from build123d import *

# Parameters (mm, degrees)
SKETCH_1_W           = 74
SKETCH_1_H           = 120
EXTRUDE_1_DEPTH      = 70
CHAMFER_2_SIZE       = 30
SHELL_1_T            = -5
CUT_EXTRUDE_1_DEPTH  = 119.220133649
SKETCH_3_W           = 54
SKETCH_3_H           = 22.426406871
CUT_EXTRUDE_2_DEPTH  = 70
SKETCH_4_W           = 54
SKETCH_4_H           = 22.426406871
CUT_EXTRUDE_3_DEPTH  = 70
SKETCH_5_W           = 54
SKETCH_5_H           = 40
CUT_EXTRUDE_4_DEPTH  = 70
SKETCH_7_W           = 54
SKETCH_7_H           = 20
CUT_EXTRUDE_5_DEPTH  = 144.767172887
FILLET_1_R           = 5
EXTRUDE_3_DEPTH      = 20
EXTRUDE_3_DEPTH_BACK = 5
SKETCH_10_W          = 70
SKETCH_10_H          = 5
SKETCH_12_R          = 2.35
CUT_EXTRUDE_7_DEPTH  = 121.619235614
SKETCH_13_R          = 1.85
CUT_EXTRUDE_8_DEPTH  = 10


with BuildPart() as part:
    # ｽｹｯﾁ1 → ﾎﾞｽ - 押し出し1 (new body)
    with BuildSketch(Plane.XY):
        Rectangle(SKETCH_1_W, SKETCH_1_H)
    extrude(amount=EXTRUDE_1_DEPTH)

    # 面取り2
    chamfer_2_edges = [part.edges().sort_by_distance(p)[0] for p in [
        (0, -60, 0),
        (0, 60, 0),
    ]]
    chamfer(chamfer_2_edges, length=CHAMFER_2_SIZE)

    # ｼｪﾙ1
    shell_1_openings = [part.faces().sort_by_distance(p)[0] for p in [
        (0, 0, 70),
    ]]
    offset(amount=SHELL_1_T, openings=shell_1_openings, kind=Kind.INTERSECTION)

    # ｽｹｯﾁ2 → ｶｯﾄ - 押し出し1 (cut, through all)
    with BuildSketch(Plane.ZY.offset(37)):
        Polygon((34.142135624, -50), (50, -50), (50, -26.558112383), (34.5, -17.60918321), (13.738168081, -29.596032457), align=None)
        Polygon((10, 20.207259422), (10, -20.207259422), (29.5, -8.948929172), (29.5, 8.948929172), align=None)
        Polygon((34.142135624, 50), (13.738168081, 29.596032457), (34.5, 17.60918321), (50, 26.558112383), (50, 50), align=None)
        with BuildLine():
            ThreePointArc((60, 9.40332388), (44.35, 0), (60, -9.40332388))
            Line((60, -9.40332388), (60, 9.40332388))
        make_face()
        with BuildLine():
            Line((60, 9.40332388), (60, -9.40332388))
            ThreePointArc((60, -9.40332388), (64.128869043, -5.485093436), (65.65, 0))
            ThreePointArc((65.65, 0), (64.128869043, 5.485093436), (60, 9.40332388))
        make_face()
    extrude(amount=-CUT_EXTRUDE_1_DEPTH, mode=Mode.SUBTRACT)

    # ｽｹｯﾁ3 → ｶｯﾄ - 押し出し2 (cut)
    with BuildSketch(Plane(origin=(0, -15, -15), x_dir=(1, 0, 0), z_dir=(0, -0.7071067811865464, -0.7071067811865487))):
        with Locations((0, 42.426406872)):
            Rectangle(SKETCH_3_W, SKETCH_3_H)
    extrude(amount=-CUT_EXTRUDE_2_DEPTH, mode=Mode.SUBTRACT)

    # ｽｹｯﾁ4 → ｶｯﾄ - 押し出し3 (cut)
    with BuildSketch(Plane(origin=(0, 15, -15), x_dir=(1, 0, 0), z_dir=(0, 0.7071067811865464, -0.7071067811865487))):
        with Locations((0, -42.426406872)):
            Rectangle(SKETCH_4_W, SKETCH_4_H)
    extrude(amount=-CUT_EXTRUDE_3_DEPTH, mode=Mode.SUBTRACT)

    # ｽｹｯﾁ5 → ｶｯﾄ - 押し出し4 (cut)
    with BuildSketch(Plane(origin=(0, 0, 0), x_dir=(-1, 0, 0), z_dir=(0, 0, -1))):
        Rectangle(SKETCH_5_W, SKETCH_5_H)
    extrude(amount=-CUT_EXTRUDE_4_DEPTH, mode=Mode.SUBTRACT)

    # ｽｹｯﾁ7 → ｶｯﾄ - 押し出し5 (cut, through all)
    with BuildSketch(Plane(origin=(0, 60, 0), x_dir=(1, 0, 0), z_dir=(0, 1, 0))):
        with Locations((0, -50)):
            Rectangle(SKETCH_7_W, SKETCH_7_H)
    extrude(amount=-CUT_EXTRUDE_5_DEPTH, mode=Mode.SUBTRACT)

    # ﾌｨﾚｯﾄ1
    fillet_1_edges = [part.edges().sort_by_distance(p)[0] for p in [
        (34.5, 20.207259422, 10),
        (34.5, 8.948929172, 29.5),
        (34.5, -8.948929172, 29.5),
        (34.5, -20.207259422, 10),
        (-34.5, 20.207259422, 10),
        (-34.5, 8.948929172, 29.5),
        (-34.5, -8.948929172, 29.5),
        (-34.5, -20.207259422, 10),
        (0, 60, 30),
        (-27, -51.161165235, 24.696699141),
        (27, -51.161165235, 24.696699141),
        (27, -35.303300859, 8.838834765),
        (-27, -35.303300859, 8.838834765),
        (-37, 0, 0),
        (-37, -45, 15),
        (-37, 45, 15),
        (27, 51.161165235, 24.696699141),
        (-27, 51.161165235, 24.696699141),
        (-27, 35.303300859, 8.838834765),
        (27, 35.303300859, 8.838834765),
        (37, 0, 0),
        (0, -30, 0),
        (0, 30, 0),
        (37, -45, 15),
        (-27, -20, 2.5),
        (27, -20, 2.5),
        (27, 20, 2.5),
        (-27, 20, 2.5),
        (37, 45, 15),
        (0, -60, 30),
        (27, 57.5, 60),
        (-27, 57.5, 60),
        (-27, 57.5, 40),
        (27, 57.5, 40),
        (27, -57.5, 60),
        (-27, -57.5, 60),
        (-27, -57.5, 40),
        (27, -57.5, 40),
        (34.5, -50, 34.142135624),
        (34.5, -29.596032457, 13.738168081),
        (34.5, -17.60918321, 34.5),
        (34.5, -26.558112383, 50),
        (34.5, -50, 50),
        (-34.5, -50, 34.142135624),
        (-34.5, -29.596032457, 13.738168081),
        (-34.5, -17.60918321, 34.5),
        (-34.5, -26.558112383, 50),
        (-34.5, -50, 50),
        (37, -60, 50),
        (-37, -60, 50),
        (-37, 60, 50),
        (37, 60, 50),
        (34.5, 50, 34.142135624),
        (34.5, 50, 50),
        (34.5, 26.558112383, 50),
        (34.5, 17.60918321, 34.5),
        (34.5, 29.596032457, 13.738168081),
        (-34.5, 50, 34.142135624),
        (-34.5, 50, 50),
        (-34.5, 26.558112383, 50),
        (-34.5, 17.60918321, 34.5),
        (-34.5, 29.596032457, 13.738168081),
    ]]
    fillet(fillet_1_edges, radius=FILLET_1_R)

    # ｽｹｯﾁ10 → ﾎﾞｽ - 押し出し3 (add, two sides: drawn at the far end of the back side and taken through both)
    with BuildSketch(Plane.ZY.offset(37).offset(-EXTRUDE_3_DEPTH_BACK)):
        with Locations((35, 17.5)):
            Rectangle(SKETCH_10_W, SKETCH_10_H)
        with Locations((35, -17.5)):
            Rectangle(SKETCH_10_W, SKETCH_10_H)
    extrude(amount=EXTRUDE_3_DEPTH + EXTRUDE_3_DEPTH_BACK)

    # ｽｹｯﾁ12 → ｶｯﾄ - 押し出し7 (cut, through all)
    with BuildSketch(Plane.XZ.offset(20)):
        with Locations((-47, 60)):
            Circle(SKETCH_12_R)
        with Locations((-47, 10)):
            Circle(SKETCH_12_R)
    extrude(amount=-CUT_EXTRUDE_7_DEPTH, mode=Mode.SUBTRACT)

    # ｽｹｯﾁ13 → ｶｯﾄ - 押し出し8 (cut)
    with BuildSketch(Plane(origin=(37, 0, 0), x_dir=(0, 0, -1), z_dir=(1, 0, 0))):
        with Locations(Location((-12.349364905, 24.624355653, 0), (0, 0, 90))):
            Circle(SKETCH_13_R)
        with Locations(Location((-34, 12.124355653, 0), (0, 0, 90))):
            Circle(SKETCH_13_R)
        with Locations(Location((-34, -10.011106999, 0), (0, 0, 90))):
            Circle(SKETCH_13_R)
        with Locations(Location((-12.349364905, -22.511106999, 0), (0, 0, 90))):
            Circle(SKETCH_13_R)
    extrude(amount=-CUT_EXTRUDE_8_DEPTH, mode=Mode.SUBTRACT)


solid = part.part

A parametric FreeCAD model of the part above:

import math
import FreeCAD as App
import Part
import Sketcher
from FreeCAD import Vector
Q = App.Units.Quantity


def edges_at(feature, points):
    """Names of the edges that pass closest to the given points."""
    edges = feature.Shape.Edges
    near = lambda p: min(range(len(edges)), key=lambda i: edges[i].distToShape(Part.Vertex(*p))[0])
    return sorted({f"Edge{near(p) + 1}" for p in points})


def faces_at(feature, points):
    """Names of the faces that lie closest to the given points."""
    faces = feature.Shape.Faces
    near = lambda p: min(range(len(faces)), key=lambda i: faces[i].distToShape(Part.Vertex(*p))[0])
    return sorted({f"Face{near(p) + 1}" for p in points})


def add_polygon(sketch, points):
    """Adds a closed chain of lines whose ends are joined by coincident constraints."""
    first, n = sketch.GeometryCount, len(points)
    for a, b in zip(points, points[1:] + points[:1]):
        sketch.addGeometry(Part.LineSegment(App.Vector(*a, 0), App.Vector(*b, 0)), False)
    for i in range(n):
        sketch.addConstraint(Sketcher.Constraint("Coincident", first + i, 2, first + (i + 1) % n, 1))

doc = App.newDocument("Part")
body = doc.addObject("PartDesign::Body", "Body")

sketch1 = body.newObject("Sketcher::SketchObject", "Sketch")
sketch1.AttachmentSupport = (doc.getObject("XY_Plane"), [""])
sketch1.MapMode = "FlatFace"
add_polygon(sketch1, [(-37, 60), (-37, -60), (37, -60), (37, 60)])
sketch1.addConstraint([
    Sketcher.Constraint("Vertical", 0),
    Sketcher.Constraint("Horizontal", 1),
    Sketcher.Constraint("Vertical", 2),
    Sketcher.Constraint("Horizontal", 3),
    Sketcher.Constraint("Symmetric", 0, 2, 2, 2, -1, 1),
    Sketcher.Constraint("DistanceX", 1, 1, 1, 2, 74.0),
    Sketcher.Constraint("DistanceY", 0, 2, 0, 1, 120.0),
])
pad1 = body.newObject("PartDesign::Pad", "Pad")
pad1.Profile = sketch1
pad1.Length = 70
doc.recompute()

chamfer = body.newObject("PartDesign::Chamfer", "Chamfer")
chamfer.Base = (pad1, edges_at(pad1, [(0, -60, 0), (0, 60, 0)]))
chamfer.Size = 30
doc.recompute()

thickness = body.newObject("PartDesign::Thickness", "Thickness")
thickness.Base = (chamfer, faces_at(chamfer, [(0, 0, 70)]))
thickness.Value = 5
thickness.Reversed = True
thickness.Join = "Intersection"

sketch2 = body.newObject("Sketcher::SketchObject", "Sketch001")
sketch2.AttachmentSupport = (doc.getObject("YZ_Plane"), [""])
sketch2.MapMode = "FlatFace"
sketch2.AttachmentOffset = App.Placement(Vector(0, 0, -37), App.Rotation())
add_polygon(sketch2, [(-50, 34), (-50, 50), (-27, 50), (-18, 34), (-30, 14)])
add_polygon(sketch2, [(20, 10), (-20, 10), (-9, 30), (9, 30)])
add_polygon(sketch2, [(50, 34), (30, 14), (18, 34), (27, 50), (50, 50)])
sketch2.addGeometry(Part.ArcOfCircle(Part.Circle(Vector(0, 55, 0), Vector(0, 0, 1), 11), math.radians(152), math.radians(388)), False)
sketch2.addGeometry(Part.ArcOfCircle(Part.Circle(Vector(0, 55, 0), Vector(0, 0, 1), 11), math.radians(90), math.radians(152)), False)
sketch2.addGeometry(Part.ArcOfCircle(Part.Circle(Vector(0, 55, 0), Vector(0, 0, 1), 11), math.radians(28), math.radians(90)), False)
sketch2.addConstraint([
    Sketcher.Constraint("Tangent", 14, 1, 15, 2),
    Sketcher.Constraint("Tangent", 15, 1, 16, 2),
    Sketcher.Constraint("Tangent", 16, 1, 14, 2),
    Sketcher.Constraint("Vertical", 0),
    Sketcher.Constraint("Horizontal", 1),
    Sketcher.Constraint("Horizontal", 5),
    Sketcher.Constraint("Horizontal", 7),
    Sketcher.Constraint("Horizontal", 12),
    Sketcher.Constraint("Vertical", 13),
    Sketcher.Constraint("Symmetric", 3, 2, 9, 2, -2),
    Sketcher.Constraint("Symmetric", 2, 2, 10, 2, -2),
    Sketcher.Constraint("Symmetric", 1, 2, 11, 2, -2),
    Sketcher.Constraint("Symmetric", 4, 2, 13, 2, -2),
    Sketcher.Constraint("Symmetric", 14, 1, 16, 1, -2),
    Sketcher.Constraint("PointOnObject", 15, 1, -2),
    Sketcher.Constraint("Parallel", 3, 6),
    Sketcher.Constraint("Parallel", 2, 8),
    Sketcher.Constraint("Perpendicular", 4, 9),
    Sketcher.Constraint("Parallel", 8, 10),
    Sketcher.Constraint("Angle", 2, Q("-60 deg")),
    Sketcher.Constraint("Radius", 14, 10.65),
    Sketcher.Constraint("DistanceY", -1, 1, 14, 3, 55.0),
    Sketcher.Constraint("DistanceX", 0, 2, -1, 1, 50.0),
    Sketcher.Constraint("DistanceY", -1, 1, 0, 2, 50.0),
    Sketcher.Constraint("DistanceY", -1, 1, 5, 2, 10.0),
    Sketcher.Constraint("DistanceY", -1, 1, 14, 1, 60.0),
    Sketcher.Constraint("DistanceY", 6, 2, 2, 2, 5.0),
    Sketcher.Constraint("DistanceY", -1, 1, 2, 2, 34.5),
    Sketcher.Constraint("Distance", 3, 23.973698),
    Sketcher.Constraint("DistanceX", 5, 2, 5, 1, 40.414519),
    Sketcher.Constraint("DistanceX", 1, 1, 1, 2, 23.441888),
    Sketcher.Constraint("DistanceX", 5, 2, -1, 1, 20.207259),
])
pocket1 = body.newObject("PartDesign::Pocket", "Pocket")
pocket1.Profile = sketch2
pocket1.Type = "ThroughAll"
pocket1.Reversed = True

sketch3 = body.newObject("Sketcher::SketchObject", "Sketch002")
sketch3.Placement = App.Placement(Vector(0, -15, -15), App.Rotation(Vector(1, 0, 0), Vector(0, -0.707106781, 0.707106781), Vector(0, -0.707106781, -0.707106781), "ZXY"))
add_polygon(sketch3, [(-27, 54), (-27, 31), (27, 31), (27, 54)])
sketch3.addConstraint([
    Sketcher.Constraint("Vertical", 0),
    Sketcher.Constraint("Horizontal", 1),
    Sketcher.Constraint("Vertical", 2),
    Sketcher.Constraint("Horizontal", 3),
    Sketcher.Constraint("DistanceX", 1, 1, 1, 2, 54.0),
    Sketcher.Constraint("DistanceX", 0, 2, -1, 1, 27.0),
    Sketcher.Constraint("DistanceY", 0, 2, 0, 1, 22.426407),
    Sketcher.Constraint("DistanceY", -1, 1, 2, 2, 53.63961),
])
pocket2 = body.newObject("PartDesign::Pocket", "Pocket001")
pocket2.Profile = sketch3
pocket2.Length = 70

sketch4 = body.newObject("Sketcher::SketchObject", "Sketch003")
sketch4.Placement = App.Placement(Vector(0, 15, -15), App.Rotation(Vector(1, 0, 0), Vector(0, -0.707106781, -0.707106781), Vector(0, 0.707106781, -0.707106781), "ZXY"))
add_polygon(sketch4, [(-27, -31), (-27, -54), (27, -54), (27, -31)])
sketch4.addConstraint([
    Sketcher.Constraint("Vertical", 0),
    Sketcher.Constraint("Horizontal", 1),
    Sketcher.Constraint("Vertical", 2),
    Sketcher.Constraint("Horizontal", 3),
    Sketcher.Constraint("DistanceX", 1, 1, 1, 2, 54.0),
    Sketcher.Constraint("DistanceX", 0, 2, -1, 1, 27.0),
    Sketcher.Constraint("DistanceY", 0, 2, 0, 1, 22.426407),
    Sketcher.Constraint("DistanceY", 0, 2, -1, 1, 53.63961),
])
pocket3 = body.newObject("PartDesign::Pocket", "Pocket002")
pocket3.Profile = sketch4
pocket3.Length = 70

sketch5 = body.newObject("Sketcher::SketchObject", "Sketch004")
sketch5.AttachmentSupport = (doc.getObject("XY_Plane"), [""])
sketch5.MapMode = "FlatFace"
add_polygon(sketch5, [(27, 20), (27, -20), (-27, -20), (-27, 20)])
sketch5.addConstraint([
    Sketcher.Constraint("Vertical", 0),
    Sketcher.Constraint("Horizontal", 1),
    Sketcher.Constraint("Vertical", 2),
    Sketcher.Constraint("Horizontal", 3),
    Sketcher.Constraint("Symmetric", 0, 2, 2, 2, -1, 1),
    Sketcher.Constraint("DistanceX", 1, 2, 1, 1, 54.0),
    Sketcher.Constraint("DistanceY", 0, 2, 0, 1, 40.0),
])
pocket4 = body.newObject("PartDesign::Pocket", "Pocket003")
pocket4.Profile = sketch5
pocket4.Length = 70
pocket4.Reversed = True

sketch6 = body.newObject("Sketcher::SketchObject", "Sketch005")
sketch6.AttachmentSupport = (doc.getObject("XZ_Plane"), [""])
sketch6.MapMode = "FlatFace"
sketch6.AttachmentOffset = App.Placement(Vector(0, 0, -60), App.Rotation())
add_polygon(sketch6, [(-27, 40), (-27, 60), (27, 60), (27, 40)])
sketch6.addConstraint([
    Sketcher.Constraint("Vertical", 0),
    Sketcher.Constraint("Horizontal", 1),
    Sketcher.Constraint("Vertical", 2),
    Sketcher.Constraint("Horizontal", 3),
    Sketcher.Constraint("DistanceX", 1, 1, 1, 2, 54.0),
    Sketcher.Constraint("DistanceY", 0, 1, 0, 2, 20.0),
    Sketcher.Constraint("DistanceX", 0, 2, -1, 1, 27.0),
    Sketcher.Constraint("DistanceY", -1, 1, 0, 2, 60.0),
])
pocket5 = body.newObject("PartDesign::Pocket", "Pocket004")
pocket5.Profile = sketch6
pocket5.Type = "ThroughAll"
pocket5.Reversed = True
doc.recompute()

fillet = body.newObject("PartDesign::Fillet", "Fillet")
fillet.Base = (pocket5, edges_at(pocket5, [
    (34.5, 20.207, 10),
    (34.5, 8.949, 29.5),
    (34.5, -8.949, 29.5),
    (34.5, -20.207, 10),
    (-34.5, 20.207, 10),
    (-34.5, 8.949, 29.5),
    (-34.5, -8.949, 29.5),
    (-34.5, -20.207, 10),
    (0, 60, 30),
    (-27, -51.161, 24.697),
    (27, -51.161, 24.697),
    (27, -35.303, 8.839),
    (-27, -35.303, 8.839),
    (-37, 0, 0),
    (-37, -45, 15),
    (-37, 45, 15),
    (27, 51.161, 24.697),
    (-27, 51.161, 24.697),
    (-27, 35.303, 8.839),
    (27, 35.303, 8.839),
    (37, 0, 0),
    (0, -30, 0),
    (0, 30, 0),
    (37, -45, 15),
    (-27, -20, 2.5),
    (27, -20, 2.5),
    (27, 20, 2.5),
    (-27, 20, 2.5),
    (37, 45, 15),
    (0, -60, 30),
    (27, 57.5, 60),
    (-27, 57.5, 60),
    (-27, 57.5, 40),
    (27, 57.5, 40),
    (27, -57.5, 60),
    (-27, -57.5, 60),
    (-27, -57.5, 40),
    (27, -57.5, 40),
    (34.5, -50, 34.142),
    (34.5, -29.596, 13.738),
    (34.5, -17.609, 34.5),
    (34.5, -26.558, 50),
    (34.5, -50, 50),
    (-34.5, -50, 34.142),
    (-34.5, -29.596, 13.738),
    (-34.5, -17.609, 34.5),
    (-34.5, -26.558, 50),
    (-34.5, -50, 50),
    (37, -60, 50),
    (-37, -60, 50),
    (-37, 60, 50),
    (37, 60, 50),
    (34.5, 50, 34.142),
    (34.5, 50, 50),
    (34.5, 26.558, 50),
    (34.5, 17.609, 34.5),
    (34.5, 29.596, 13.738),
    (-34.5, 50, 34.142),
    (-34.5, 50, 50),
    (-34.5, 26.558, 50),
    (-34.5, 17.609, 34.5),
    (-34.5, 29.596, 13.738),
]))
fillet.Radius = 5

sketch7 = body.newObject("Sketcher::SketchObject", "Sketch006")
sketch7.AttachmentSupport = (doc.getObject("YZ_Plane"), [""])
sketch7.MapMode = "FlatFace"
sketch7.AttachmentOffset = App.Placement(Vector(0, 0, -37), App.Rotation())
add_polygon(sketch7, [(20, 0), (15, 0), (15, 70), (20, 70)])
add_polygon(sketch7, [(-15, 0), (-20, 0), (-20, 70), (-15, 70)])
sketch7.addConstraint([
    Sketcher.Constraint("Horizontal", 0),
    Sketcher.Constraint("Vertical", 1),
    Sketcher.Constraint("Horizontal", 2),
    Sketcher.Constraint("Vertical", 3),
    Sketcher.Constraint("Horizontal", 4),
    Sketcher.Constraint("Vertical", 5),
    Sketcher.Constraint("Horizontal", 6),
    Sketcher.Constraint("Vertical", 7),
    Sketcher.Constraint("Symmetric", 3, 2, 4, 2, -1, 1),
    Sketcher.Constraint("Symmetric", 1, 2, 6, 2, -2),
    Sketcher.Constraint("PointOnObject", 0, 2, -1),
    Sketcher.Constraint("DistanceX", 0, 2, 0, 1, 5.0),
    Sketcher.Constraint("DistanceY", 1, 1, 1, 2, 70.0),
    Sketcher.Constraint("DistanceX", -1, 1, 0, 2, 15.0),
])
pad2 = body.newObject("PartDesign::Pad", "Pad001")
pad2.Profile = sketch7
pad2.Type = "TwoLengths"
pad2.Length = 20
pad2.Length2 = 5
pad2.Reversed = True

sketch8 = body.newObject("Sketcher::SketchObject", "Sketch007")
sketch8.AttachmentSupport = (doc.getObject("XZ_Plane"), [""])
sketch8.MapMode = "FlatFace"
sketch8.AttachmentOffset = App.Placement(Vector(0, 0, 20), App.Rotation())
sketch8.addGeometry([
    Part.Circle(Vector(-47, 60, 0), Vector(0, 0, 1), 2.4),
    Part.Circle(Vector(-47, 10, 0), Vector(0, 0, 1), 2.4),
], False)
sketch8.addConstraint([
    Sketcher.Constraint("Equal", 0, 1),
    Sketcher.Constraint("Vertical", 0, 3, 1, 3),
    Sketcher.Constraint("Diameter", 0, 4.7),
    Sketcher.Constraint("DistanceX", 0, 3, -1, 1, 47.0),
    Sketcher.Constraint("DistanceY", -1, 1, 0, 3, 60.0),
    Sketcher.Constraint("DistanceY", -1, 1, 1, 3, 10.0),
])
pocket6 = body.newObject("PartDesign::Pocket", "Pocket005")
pocket6.Profile = sketch8
pocket6.Type = "ThroughAll"

sketch9 = body.newObject("Sketcher::SketchObject", "Sketch008")
sketch9.AttachmentSupport = (doc.getObject("YZ_Plane"), [""])
sketch9.MapMode = "FlatFace"
sketch9.AttachmentOffset = App.Placement(Vector(0, 0, 37), App.Rotation())
sketch9.addGeometry([
    Part.Circle(Vector(24.6, 12.3, 0), Vector(0, 0, 1), 1.9),
    Part.Circle(Vector(12.1, 34, 0), Vector(0, 0, 1), 1.9),
    Part.Circle(Vector(-10, 34, 0), Vector(0, 0, 1), 1.9),
    Part.Circle(Vector(-22.5, 12.3, 0), Vector(0, 0, 1), 1.9),
], False)
sketch9.addConstraint([
    Sketcher.Constraint("Equal", 0, 1),
    Sketcher.Constraint("Equal", 1, 2),
    Sketcher.Constraint("Equal", 2, 3),
    Sketcher.Constraint("Horizontal", 1, 3, 2, 3),
    Sketcher.Constraint("Horizontal", 0, 3, 3, 3),
    Sketcher.Constraint("Diameter", 0, 3.7),
    Sketcher.Constraint("DistanceY", -1, 1, 1, 3, 34.0),
    Sketcher.Constraint("DistanceX", 1, 3, 0, 3, 12.5),
    Sketcher.Constraint("DistanceX", 3, 3, 2, 3, 12.5),
    Sketcher.Constraint("DistanceX", -1, 1, 0, 3, 24.624356),
    Sketcher.Constraint("DistanceY", -1, 1, 0, 3, 12.349365),
    Sketcher.Constraint("DistanceX", 2, 3, -1, 1, 10.011107),
])
pocket7 = body.newObject("PartDesign::Pocket", "Pocket006")
pocket7.Profile = sketch9
pocket7.Length = 10

doc.recompute()
